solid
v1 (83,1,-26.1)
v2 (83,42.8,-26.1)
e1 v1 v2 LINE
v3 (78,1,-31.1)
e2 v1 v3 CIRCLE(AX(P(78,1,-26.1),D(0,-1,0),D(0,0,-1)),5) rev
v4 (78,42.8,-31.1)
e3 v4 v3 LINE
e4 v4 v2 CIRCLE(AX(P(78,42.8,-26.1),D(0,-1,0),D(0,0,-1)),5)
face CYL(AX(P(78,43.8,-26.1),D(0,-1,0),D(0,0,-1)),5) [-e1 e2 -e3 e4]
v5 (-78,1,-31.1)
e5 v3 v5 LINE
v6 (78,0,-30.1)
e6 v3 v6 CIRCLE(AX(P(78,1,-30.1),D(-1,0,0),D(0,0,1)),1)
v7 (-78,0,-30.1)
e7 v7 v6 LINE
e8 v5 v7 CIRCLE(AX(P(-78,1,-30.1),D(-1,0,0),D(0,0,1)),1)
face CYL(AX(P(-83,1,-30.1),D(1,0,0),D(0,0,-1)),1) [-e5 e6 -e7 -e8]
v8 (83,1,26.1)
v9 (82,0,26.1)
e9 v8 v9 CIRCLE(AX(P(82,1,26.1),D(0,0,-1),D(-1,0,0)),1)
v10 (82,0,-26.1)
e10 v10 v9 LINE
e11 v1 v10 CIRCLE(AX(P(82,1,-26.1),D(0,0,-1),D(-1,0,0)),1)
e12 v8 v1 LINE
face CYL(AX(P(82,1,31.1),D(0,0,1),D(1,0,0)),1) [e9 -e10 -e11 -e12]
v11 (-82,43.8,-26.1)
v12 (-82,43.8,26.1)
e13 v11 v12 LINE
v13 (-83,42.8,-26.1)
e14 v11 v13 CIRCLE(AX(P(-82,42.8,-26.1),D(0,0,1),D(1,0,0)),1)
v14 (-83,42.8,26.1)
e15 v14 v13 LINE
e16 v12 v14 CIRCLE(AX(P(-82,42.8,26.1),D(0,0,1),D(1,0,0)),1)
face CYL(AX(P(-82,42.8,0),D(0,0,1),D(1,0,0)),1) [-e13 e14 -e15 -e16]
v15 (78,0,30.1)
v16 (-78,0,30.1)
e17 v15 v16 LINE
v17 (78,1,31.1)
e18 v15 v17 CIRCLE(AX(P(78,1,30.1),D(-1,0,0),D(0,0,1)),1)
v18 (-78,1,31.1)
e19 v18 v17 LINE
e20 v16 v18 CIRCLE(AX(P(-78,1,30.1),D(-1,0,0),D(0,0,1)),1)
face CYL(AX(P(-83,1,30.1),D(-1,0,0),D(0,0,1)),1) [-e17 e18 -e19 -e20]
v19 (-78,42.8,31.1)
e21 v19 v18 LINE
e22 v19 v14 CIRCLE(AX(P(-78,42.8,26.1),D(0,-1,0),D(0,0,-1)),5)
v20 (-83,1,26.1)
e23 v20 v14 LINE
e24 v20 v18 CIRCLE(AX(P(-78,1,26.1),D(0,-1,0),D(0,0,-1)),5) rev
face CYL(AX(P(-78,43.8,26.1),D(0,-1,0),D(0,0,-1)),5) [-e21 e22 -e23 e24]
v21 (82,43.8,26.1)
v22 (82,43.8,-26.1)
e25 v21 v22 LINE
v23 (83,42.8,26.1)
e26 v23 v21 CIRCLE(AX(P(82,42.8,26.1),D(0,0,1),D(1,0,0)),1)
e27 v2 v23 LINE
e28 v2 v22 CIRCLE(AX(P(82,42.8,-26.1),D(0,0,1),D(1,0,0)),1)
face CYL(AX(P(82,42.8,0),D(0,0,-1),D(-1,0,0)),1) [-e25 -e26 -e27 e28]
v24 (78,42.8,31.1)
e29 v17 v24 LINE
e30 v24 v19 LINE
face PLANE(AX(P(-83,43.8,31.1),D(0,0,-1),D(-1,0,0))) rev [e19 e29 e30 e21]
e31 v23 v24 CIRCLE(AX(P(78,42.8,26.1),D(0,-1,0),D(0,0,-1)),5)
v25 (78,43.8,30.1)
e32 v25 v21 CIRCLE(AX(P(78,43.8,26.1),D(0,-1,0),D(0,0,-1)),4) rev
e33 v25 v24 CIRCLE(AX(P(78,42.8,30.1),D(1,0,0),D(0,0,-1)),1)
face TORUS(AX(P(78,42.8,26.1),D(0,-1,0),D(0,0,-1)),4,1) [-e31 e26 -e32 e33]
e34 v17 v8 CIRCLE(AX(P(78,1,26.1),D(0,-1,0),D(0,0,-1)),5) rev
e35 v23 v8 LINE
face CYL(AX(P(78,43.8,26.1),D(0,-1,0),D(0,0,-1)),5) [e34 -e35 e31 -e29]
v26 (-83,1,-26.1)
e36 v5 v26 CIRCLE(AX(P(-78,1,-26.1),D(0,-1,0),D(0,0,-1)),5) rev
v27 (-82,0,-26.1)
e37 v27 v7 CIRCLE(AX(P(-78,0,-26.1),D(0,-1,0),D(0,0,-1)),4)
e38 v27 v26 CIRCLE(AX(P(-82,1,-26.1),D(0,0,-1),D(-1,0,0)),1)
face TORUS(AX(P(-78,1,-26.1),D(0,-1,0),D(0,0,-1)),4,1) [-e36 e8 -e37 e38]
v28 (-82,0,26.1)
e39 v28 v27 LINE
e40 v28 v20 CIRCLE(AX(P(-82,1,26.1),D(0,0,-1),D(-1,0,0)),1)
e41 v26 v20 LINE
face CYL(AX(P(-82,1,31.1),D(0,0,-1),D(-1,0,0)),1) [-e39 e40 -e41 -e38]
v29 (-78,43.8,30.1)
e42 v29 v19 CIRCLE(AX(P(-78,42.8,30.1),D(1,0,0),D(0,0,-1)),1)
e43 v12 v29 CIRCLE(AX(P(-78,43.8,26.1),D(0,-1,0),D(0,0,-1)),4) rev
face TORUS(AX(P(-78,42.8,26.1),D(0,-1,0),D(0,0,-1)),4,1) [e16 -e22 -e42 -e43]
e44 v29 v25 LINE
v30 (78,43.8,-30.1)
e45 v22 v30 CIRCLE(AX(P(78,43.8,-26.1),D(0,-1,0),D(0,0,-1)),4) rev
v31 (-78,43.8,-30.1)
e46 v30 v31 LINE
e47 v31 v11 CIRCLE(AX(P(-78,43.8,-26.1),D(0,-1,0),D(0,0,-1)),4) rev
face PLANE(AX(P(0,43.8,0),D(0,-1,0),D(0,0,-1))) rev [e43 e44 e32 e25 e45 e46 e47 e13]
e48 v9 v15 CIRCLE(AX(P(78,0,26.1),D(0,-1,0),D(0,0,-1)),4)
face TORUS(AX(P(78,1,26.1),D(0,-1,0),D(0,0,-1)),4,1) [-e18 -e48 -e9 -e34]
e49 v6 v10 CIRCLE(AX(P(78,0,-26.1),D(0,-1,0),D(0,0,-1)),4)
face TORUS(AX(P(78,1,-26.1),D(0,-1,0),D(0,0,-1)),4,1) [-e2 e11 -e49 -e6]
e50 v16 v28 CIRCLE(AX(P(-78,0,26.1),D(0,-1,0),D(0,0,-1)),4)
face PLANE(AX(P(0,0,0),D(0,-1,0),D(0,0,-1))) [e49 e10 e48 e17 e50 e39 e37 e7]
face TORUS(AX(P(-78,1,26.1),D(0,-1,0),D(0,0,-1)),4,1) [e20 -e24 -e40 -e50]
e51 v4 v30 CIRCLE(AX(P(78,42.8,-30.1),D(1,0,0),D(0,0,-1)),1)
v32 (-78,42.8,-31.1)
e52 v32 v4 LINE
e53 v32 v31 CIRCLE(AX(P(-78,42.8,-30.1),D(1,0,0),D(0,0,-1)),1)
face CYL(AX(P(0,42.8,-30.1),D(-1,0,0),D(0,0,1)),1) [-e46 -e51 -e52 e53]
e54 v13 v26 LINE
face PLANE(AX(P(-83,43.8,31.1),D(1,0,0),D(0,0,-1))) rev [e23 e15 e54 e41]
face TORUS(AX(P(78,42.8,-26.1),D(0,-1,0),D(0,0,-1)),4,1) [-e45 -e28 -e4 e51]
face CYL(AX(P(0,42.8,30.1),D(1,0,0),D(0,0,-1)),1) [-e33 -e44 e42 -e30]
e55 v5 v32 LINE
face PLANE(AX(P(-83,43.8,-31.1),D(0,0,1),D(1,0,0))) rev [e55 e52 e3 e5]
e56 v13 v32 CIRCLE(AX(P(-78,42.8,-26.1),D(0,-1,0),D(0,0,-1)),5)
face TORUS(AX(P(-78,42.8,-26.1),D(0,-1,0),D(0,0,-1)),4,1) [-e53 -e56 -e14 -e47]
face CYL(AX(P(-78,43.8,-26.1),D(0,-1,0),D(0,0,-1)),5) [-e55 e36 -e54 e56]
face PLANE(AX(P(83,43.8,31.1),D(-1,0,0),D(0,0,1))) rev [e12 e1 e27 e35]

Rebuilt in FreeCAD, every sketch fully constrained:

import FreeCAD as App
import Part
import Sketcher

V = App.Vector


def edges_at(feature, points):
    """Names of the edges that pass closest to the given points."""
    edges = feature.Shape.Edges
    near = lambda p: min(range(len(edges)), key=lambda i: edges[i].distToShape(Part.Vertex(*p))[0])
    return sorted({f"Edge{near(p) + 1}" for p in points})

doc = App.newDocument("Part")
body = doc.addObject("PartDesign::Body", "Body")

sketch1 = doc.addObject("Sketcher::SketchObject", "Sketch")
body.addObject(sketch1)
sketch1.AttachmentSupport = (doc.XZ_Plane, [""])
sketch1.MapMode = "FlatFace"
sketch1.addGeometry([
    Part.LineSegment(V(-83, -31, 0), V(-83, 31, 0)),
    Part.LineSegment(V(-83, 31, 0), V(83, 31, 0)),
    Part.LineSegment(V(83, 31, 0), V(83, -31, 0)),
    Part.LineSegment(V(83, -31, 0), V(-83, -31, 0)),
], False)
sketch1.addConstraint([
    Sketcher.Constraint("Coincident", 0, 2, 1, 1),
    Sketcher.Constraint("Coincident", 1, 2, 2, 1),
    Sketcher.Constraint("Coincident", 2, 2, 3, 1),
    Sketcher.Constraint("Coincident", 3, 2, 0, 1),
    Sketcher.Constraint("Vertical", 0),
    Sketcher.Constraint("Horizontal", 1),
    Sketcher.Constraint("Vertical", 2),
    Sketcher.Constraint("Horizontal", 3),
    Sketcher.Constraint("Symmetric", 0, 2, 2, 2, -1, 1),
    Sketcher.Constraint("DistanceX", 1, 1, 1, 2, 166.0),
    Sketcher.Constraint("DistanceY", 0, 1, 0, 2, 62.2),
])
pad1 = doc.addObject("PartDesign::Pad", "Pad")
body.addObject(pad1)
pad1.Profile = sketch1
pad1.Length = 43.8
pad1.Reversed = True
doc.recompute()

fillet = doc.addObject("PartDesign::Fillet", "Fillet")
body.addObject(fillet)
fillet.Base = (pad1, edges_at(pad1, [
    (83, 21.9, 31.1),
    (-83, 21.9, 31.1),
    (-83, 21.9, -31.1),
    (83, 21.9, -31.1),
]))
fillet.Radius = 5
doc.recompute()

fillet2 = doc.addObject("PartDesign::Fillet", "Fillet001")
body.addObject(fillet2)
fillet2.Base = (fillet, edges_at(fillet, [
    (0, 0, -31.1),
    (0, 43.8, -31.1),
    (83, 0, 0),
    (0, 0, 31.1),
    (-83, 0, 0),
    (-81.536, 0, 29.636),
    (-81.536, 0, -29.636),
    (81.536, 0, 29.636),
    (81.536, 0, -29.636),
    (83, 43.8, 0),
    (-83, 43.8, 0),
    (0, 43.8, 31.1),
    (-81.536, 43.8, 29.636),
    (-81.536, 43.8, -29.636),
    (81.536, 43.8, 29.636),
    (81.536, 43.8, -29.636),
]))
fillet2.Radius = 1

doc.recompute()
